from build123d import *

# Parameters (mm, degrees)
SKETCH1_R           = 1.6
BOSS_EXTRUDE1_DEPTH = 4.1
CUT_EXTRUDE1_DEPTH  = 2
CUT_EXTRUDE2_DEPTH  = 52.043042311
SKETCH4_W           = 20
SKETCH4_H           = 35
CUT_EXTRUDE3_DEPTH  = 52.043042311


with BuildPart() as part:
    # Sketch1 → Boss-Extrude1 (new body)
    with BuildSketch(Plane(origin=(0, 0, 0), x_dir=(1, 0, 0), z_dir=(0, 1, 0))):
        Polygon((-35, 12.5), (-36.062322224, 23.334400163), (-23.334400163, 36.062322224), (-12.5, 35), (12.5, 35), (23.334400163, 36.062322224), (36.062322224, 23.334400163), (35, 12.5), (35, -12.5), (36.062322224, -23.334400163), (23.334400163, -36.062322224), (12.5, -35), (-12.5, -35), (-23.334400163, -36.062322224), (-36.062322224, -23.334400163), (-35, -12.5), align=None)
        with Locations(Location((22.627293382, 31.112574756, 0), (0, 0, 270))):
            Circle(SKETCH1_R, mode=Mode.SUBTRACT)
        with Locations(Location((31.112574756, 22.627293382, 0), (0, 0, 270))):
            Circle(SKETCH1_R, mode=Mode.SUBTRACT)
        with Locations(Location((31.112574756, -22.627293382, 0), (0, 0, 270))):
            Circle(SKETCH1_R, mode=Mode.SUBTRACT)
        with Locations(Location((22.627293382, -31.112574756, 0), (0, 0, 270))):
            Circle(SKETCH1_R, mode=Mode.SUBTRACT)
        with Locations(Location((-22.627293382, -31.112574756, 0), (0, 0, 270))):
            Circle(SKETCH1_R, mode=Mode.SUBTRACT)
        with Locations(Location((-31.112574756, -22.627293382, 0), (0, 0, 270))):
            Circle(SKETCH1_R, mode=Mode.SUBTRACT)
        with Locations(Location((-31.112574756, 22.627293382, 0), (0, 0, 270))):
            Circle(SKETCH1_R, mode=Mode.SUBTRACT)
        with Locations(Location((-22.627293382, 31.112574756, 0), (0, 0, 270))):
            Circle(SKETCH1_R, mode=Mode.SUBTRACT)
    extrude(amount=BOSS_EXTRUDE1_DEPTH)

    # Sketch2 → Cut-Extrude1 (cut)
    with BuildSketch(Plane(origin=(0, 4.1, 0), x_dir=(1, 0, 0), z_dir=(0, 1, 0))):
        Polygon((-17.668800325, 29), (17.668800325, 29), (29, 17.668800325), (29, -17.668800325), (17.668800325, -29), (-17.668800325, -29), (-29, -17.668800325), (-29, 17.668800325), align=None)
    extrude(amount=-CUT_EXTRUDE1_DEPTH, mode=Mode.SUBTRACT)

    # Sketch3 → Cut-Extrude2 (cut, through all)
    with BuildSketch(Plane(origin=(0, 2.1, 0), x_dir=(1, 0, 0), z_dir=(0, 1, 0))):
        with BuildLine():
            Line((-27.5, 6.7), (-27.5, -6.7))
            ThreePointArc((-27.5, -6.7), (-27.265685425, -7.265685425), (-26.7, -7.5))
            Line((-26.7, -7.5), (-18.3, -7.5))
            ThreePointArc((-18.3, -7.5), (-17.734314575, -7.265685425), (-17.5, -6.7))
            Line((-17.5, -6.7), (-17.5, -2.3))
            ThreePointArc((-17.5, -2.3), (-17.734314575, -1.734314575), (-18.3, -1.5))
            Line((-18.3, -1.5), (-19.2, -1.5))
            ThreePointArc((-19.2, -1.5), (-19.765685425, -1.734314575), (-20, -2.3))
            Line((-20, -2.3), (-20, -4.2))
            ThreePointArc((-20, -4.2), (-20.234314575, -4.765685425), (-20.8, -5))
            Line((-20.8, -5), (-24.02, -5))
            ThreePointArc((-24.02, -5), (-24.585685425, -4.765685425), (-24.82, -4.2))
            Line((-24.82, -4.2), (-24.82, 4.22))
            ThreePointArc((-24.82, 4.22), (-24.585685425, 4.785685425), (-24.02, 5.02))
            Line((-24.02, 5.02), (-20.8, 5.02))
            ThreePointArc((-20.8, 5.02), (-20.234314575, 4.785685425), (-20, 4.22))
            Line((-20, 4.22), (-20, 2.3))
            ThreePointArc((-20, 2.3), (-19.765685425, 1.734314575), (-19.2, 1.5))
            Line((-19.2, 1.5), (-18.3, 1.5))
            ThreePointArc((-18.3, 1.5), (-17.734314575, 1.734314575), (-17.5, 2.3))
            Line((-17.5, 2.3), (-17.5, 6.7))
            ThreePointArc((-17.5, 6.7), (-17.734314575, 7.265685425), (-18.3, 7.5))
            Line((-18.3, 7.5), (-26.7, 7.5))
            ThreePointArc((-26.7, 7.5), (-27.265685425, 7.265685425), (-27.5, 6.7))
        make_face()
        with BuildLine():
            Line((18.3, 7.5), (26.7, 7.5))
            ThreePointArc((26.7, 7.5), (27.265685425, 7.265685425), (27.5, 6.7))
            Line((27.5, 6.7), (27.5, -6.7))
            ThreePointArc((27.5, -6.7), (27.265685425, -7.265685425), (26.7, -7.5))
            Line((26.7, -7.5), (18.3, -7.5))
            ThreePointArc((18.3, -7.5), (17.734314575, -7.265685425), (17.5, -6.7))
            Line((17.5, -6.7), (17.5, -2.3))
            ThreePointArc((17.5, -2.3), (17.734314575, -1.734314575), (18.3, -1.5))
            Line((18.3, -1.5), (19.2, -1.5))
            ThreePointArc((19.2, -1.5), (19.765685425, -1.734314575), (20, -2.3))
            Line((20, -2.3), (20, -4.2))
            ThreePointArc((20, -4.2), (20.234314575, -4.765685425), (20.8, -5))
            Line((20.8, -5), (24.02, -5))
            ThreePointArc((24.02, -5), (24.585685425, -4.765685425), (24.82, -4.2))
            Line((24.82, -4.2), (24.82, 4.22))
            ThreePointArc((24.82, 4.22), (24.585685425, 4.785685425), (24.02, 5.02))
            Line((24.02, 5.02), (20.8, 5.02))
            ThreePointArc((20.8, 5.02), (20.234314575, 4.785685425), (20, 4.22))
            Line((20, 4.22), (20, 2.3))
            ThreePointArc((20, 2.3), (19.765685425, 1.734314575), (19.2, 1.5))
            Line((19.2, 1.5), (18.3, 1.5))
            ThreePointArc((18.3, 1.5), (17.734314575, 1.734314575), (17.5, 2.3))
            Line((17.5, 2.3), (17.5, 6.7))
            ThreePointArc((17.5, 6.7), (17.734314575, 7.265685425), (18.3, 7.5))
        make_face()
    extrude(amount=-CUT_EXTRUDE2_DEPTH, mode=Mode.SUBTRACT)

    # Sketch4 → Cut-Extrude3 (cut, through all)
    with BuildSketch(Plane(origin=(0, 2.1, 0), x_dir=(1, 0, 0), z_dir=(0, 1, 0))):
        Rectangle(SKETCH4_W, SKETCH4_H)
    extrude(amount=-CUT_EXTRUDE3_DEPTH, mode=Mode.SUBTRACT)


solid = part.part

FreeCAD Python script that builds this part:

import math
import FreeCAD as App
import Part
import Sketcher
Q = App.Units.Quantity

doc = App.newDocument("Part")
body = doc.addObject("PartDesign::Body", "Body")

# Sketch on XZ plane
sketch1 = body.newObject("Sketcher::SketchObject", "Sketch")
sketch1.AttachmentSupport = (doc.getObject("XZ_Plane"), [""])
sketch1.MapMode = "FlatFace"
sketch1.addGeometry([
    Part.LineSegment(App.Vector(-36.1, -23.3, 0), App.Vector(-35, -12.5, 0)),  # 0
    Part.LineSegment(App.Vector(-35, -12.5, 0), App.Vector(-35, 12.5, 0)),  # 1
    Part.LineSegment(App.Vector(-35, 12.5, 0), App.Vector(-36.1, 23.3, 0)),  # 2
    Part.LineSegment(App.Vector(-36.1, 23.3, 0), App.Vector(-23.3, 36.1, 0)),  # 3
    Part.LineSegment(App.Vector(-23.3, 36.1, 0), App.Vector(-12.5, 35, 0)),  # 4
    Part.LineSegment(App.Vector(-12.5, 35, 0), App.Vector(12.5, 35, 0)),  # 5
    Part.LineSegment(App.Vector(12.5, 35, 0), App.Vector(23.3, 36.1, 0)),  # 6
    Part.LineSegment(App.Vector(23.3, 36.1, 0), App.Vector(36.1, 23.3, 0)),  # 7
    Part.LineSegment(App.Vector(36.1, 23.3, 0), App.Vector(35, 12.5, 0)),  # 8
    Part.LineSegment(App.Vector(35, 12.5, 0), App.Vector(35, -12.5, 0)),  # 9
    Part.LineSegment(App.Vector(35, -12.5, 0), App.Vector(36.1, -23.3, 0)),  # 10
    Part.LineSegment(App.Vector(36.1, -23.3, 0), App.Vector(23.3, -36.1, 0)),  # 11
    Part.LineSegment(App.Vector(23.3, -36.1, 0), App.Vector(12.5, -35, 0)),  # 12
    Part.LineSegment(App.Vector(12.5, -35, 0), App.Vector(-12.5, -35, 0)),  # 13
    Part.LineSegment(App.Vector(-12.5, -35, 0), App.Vector(-23.3, -36.1, 0)),  # 14
    Part.LineSegment(App.Vector(-23.3, -36.1, 0), App.Vector(-36.1, -23.3, 0)),  # 15
    Part.Circle(App.Vector(22.6, 31.1, 0), App.Vector(0, 0, 1), 1.6),  # 16
    Part.Circle(App.Vector(31.1, 22.6, 0), App.Vector(0, 0, 1), 1.6),  # 17
    Part.Circle(App.Vector(-22.6, 31.1, 0), App.Vector(0, 0, 1), 1.6),  # 18
    Part.Circle(App.Vector(-31.1, 22.6, 0), App.Vector(0, 0, 1), 1.6),  # 19
    Part.Circle(App.Vector(31.1, -22.6, 0), App.Vector(0, 0, 1), 1.6),  # 20
    Part.Circle(App.Vector(22.6, -31.1, 0), App.Vector(0, 0, 1), 1.6),  # 21
    Part.Circle(App.Vector(-31.1, -22.6, 0), App.Vector(0, 0, 1), 1.6),  # 22
    Part.Circle(App.Vector(-22.6, -31.1, 0), App.Vector(0, 0, 1), 1.6),  # 23
], False)
sketch1.addConstraint([
    Sketcher.Constraint("Coincident", 0, 2, 1, 1),
    Sketcher.Constraint("Coincident", 1, 2, 2, 1),
    Sketcher.Constraint("Coincident", 2, 2, 3, 1),
    Sketcher.Constraint("Coincident", 3, 2, 4, 1),
    Sketcher.Constraint("Coincident", 4, 2, 5, 1),
    Sketcher.Constraint("Coincident", 5, 2, 6, 1),
    Sketcher.Constraint("Coincident", 6, 2, 7, 1),
    Sketcher.Constraint("Coincident", 7, 2, 8, 1),
    Sketcher.Constraint("Coincident", 8, 2, 9, 1),
    Sketcher.Constraint("Coincident", 9, 2, 10, 1),
    Sketcher.Constraint("Coincident", 10, 2, 11, 1),
    Sketcher.Constraint("Coincident", 11, 2, 12, 1),
    Sketcher.Constraint("Coincident", 12, 2, 13, 1),
    Sketcher.Constraint("Coincident", 13, 2, 14, 1),
    Sketcher.Constraint("Coincident", 14, 2, 15, 1),
    Sketcher.Constraint("Coincident", 15, 2, 0, 1),
    Sketcher.Constraint("Vertical", 1),
    Sketcher.Constraint("Horizontal", 5),
    Sketcher.Constraint("Vertical", 9),
    Sketcher.Constraint("Horizontal", 13),
    Sketcher.Constraint("Equal", 16, 17),
    Sketcher.Constraint("Equal", 17, 18),
    Sketcher.Constraint("Equal", 18, 19),
    Sketcher.Constraint("Equal", 19, 20),
    Sketcher.Constraint("Equal", 20, 21),
    Sketcher.Constraint("Equal", 21, 22),
    Sketcher.Constraint("Equal", 22, 23),
    Sketcher.Constraint("Symmetric", 19, 3, 20, 3, -1, 1),
    Sketcher.Constraint("Symmetric", 18, 3, 21, 3, -1, 1),
    Sketcher.Constraint("Symmetric", 17, 3, 22, 3, -1, 1),
    Sketcher.Constraint("Symmetric", 16, 3, 23, 3, -1, 1),
    Sketcher.Constraint("Symmetric", 0, 2, 8, 2, -1, 1),
    Sketcher.Constraint("Symmetric", 2, 2, 10, 2, -1, 1),
    Sketcher.Constraint("Symmetric", 3, 2, 11, 2, -1, 1),
    Sketcher.Constraint("Symmetric", 4, 2, 12, 2, -1, 1),
    Sketcher.Constraint("Symmetric", 6, 2, 14, 2, -1, 1),
    Sketcher.Constraint("Symmetric", 7, 2, 15, 2, -1, 1),
    Sketcher.Constraint("Symmetric", 16, 3, 18, 3, -2),
    Sketcher.Constraint("Symmetric", 17, 3, 19, 3, -2),
    Sketcher.Constraint("Symmetric", 3, 2, 6, 2, -2),
    Sketcher.Constraint("Symmetric", 2, 2, 7, 2, -2),
    Sketcher.Constraint("Perpendicular", 0, 4),
    Sketcher.Constraint("Perpendicular", 2, 6),
    Sketcher.Constraint("Perpendicular", 3, 7),
    Sketcher.Constraint("Perpendicular", 6, 10),
    Sketcher.Constraint("Perpendicular", 10, 14),
    Sketcher.Constraint("Horizontal", 1, 2, 8, 2),
    Sketcher.Constraint("Equal", 13, 1),
    Sketcher.Constraint("Equal", 2, 4),
    Sketcher.Constraint("Diameter", 16, Q("3.2 mm")),
    Sketcher.Constraint("DistanceX", 5, 1, 5, 2, Q("25 mm")),
    Sketcher.Constraint("Distance", 3, Q("18 mm")),
    Sketcher.Constraint("DistanceX", 0, 2, -1, 1, Q("35 mm")),
    Sketcher.Constraint("Angle", 0, Q("84.4 deg")),
    Sketcher.Constraint("DistanceX", 16, 3, 17, 3, Q("8.485281 mm")),
    Sketcher.Constraint("DistanceY", 17, 3, 16, 3, Q("8.485281 mm")),
    Sketcher.Constraint("DistanceX", 18, 3, 17, 3, Q("53.739868 mm")),
    Sketcher.Constraint("DistanceY", 20, 3, 16, 3, Q("53.739868 mm")),
])
pad1 = body.newObject("PartDesign::Pad", "Pad")
pad1.Profile = sketch1
pad1.Length = 4.1
pad1.Reversed = True

# Sketch on XZ plane
sketch2 = body.newObject("Sketcher::SketchObject", "Sketch001")
sketch2.AttachmentSupport = (doc.getObject("XZ_Plane"), [""])
sketch2.MapMode = "FlatFace"
sketch2.AttachmentOffset = App.Placement(App.Vector(0, 0, -4.1), App.Rotation())
sketch2.addGeometry([
    Part.LineSegment(App.Vector(18, -29, 0), App.Vector(-18, -29, 0)),  # 0
    Part.LineSegment(App.Vector(-18, -29, 0), App.Vector(-29, -18, 0)),  # 1
    Part.LineSegment(App.Vector(-29, -18, 0), App.Vector(-29, 18, 0)),  # 2
    Part.LineSegment(App.Vector(-29, 18, 0), App.Vector(-18, 29, 0)),  # 3
    Part.LineSegment(App.Vector(-18, 29, 0), App.Vector(18, 29, 0)),  # 4
    Part.LineSegment(App.Vector(18, 29, 0), App.Vector(29, 18, 0)),  # 5
    Part.LineSegment(App.Vector(29, 18, 0), App.Vector(29, -18, 0)),  # 6
    Part.LineSegment(App.Vector(29, -18, 0), App.Vector(18, -29, 0)),  # 7
], False)
sketch2.addConstraint([
    Sketcher.Constraint("Coincident", 0, 2, 1, 1),
    Sketcher.Constraint("Coincident", 1, 2, 2, 1),
    Sketcher.Constraint("Coincident", 2, 2, 3, 1),
    Sketcher.Constraint("Coincident", 3, 2, 4, 1),
    Sketcher.Constraint("Coincident", 4, 2, 5, 1),
    Sketcher.Constraint("Coincident", 5, 2, 6, 1),
    Sketcher.Constraint("Coincident", 6, 2, 7, 1),
    Sketcher.Constraint("Coincident", 7, 2, 0, 1),
    Sketcher.Constraint("Horizontal", 0),
    Sketcher.Constraint("Vertical", 2),
    Sketcher.Constraint("Horizontal", 4),
    Sketcher.Constraint("Vertical", 6),
    Sketcher.Constraint("Symmetric", 0, 2, 4, 2, -1, 1),
    Sketcher.Constraint("Symmetric", 1, 2, 5, 2, -1, 1),
    Sketcher.Constraint("Perpendicular", 1, 3),
    Sketcher.Constraint("Perpendicular", 5, 7),
    Sketcher.Constraint("Horizontal", 2, 2, 5, 2),
    Sketcher.Constraint("Horizontal", 1, 2, 6, 2),
    Sketcher.Constraint("Vertical", 0, 2, 3, 2),
    Sketcher.Constraint("Equal", 4, 2),
    Sketcher.Constraint("DistanceY", 0, 2, -1, 1, Q("29 mm")),
    Sketcher.Constraint("DistanceX", 0, 2, 0, 1, Q("35.337601 mm")),
])
pocket1 = body.newObject("PartDesign::Pocket", "Pocket")
pocket1.Profile = sketch2
pocket1.Length = 2
pocket1.Reversed = True

# Sketch on XZ plane
sketch3 = body.newObject("Sketcher::SketchObject", "Sketch002")
sketch3.AttachmentSupport = (doc.getObject("XZ_Plane"), [""])
sketch3.MapMode = "FlatFace"
sketch3.AttachmentOffset = App.Placement(App.Vector(0, 0, -2.1), App.Rotation())
sketch3.addGeometry([
    Part.LineSegment(App.Vector(-27.5, -6.7, 0), App.Vector(-27.5, 6.7, 0)),  # 0
    Part.ArcOfCircle(Part.Circle(App.Vector(-26.7, 6.7, 0), App.Vector(0, 0, 1), 0.8), math.radians(90), math.radians(180)),  # 1
    Part.LineSegment(App.Vector(-26.7, 7.5, 0), App.Vector(-18.3, 7.5, 0)),  # 2
    Part.ArcOfCircle(Part.Circle(App.Vector(-18.3, 6.7, 0), App.Vector(0, 0, 1), 0.8), math.radians(0), math.radians(90)),  # 3
    Part.LineSegment(App.Vector(-17.5, 6.7, 0), App.Vector(-17.5, 2.3, 0)),  # 4
    Part.ArcOfCircle(Part.Circle(App.Vector(-18.3, 2.3, 0), App.Vector(0, 0, 1), 0.8), math.radians(-90), math.radians(0)),  # 5
    Part.LineSegment(App.Vector(-18.3, 1.5, 0), App.Vector(-19.2, 1.5, 0)),  # 6
    Part.ArcOfCircle(Part.Circle(App.Vector(-19.2, 2.3, 0), App.Vector(0, 0, 1), 0.8), math.radians(180), math.radians(270)),  # 7
    Part.LineSegment(App.Vector(-20, 2.3, 0), App.Vector(-20, 4.2, 0)),  # 8
    Part.ArcOfCircle(Part.Circle(App.Vector(-20.8, 4.2, 0), App.Vector(0, 0, 1), 0.8), math.radians(0), math.radians(90)),  # 9
    Part.LineSegment(App.Vector(-20.8, 5, 0), App.Vector(-24, 5, 0)),  # 10
    Part.ArcOfCircle(Part.Circle(App.Vector(-24, 4.2, 0), App.Vector(0, 0, 1), 0.8), math.radians(90), math.radians(180)),  # 11
    Part.LineSegment(App.Vector(-24.8, 4.2, 0), App.Vector(-24.8, -4.2, 0)),  # 12
    Part.ArcOfCircle(Part.Circle(App.Vector(-24, -4.2, 0), App.Vector(0, 0, 1), 0.8), math.radians(180), math.radians(270)),  # 13
    Part.LineSegment(App.Vector(-24, -5, 0), App.Vector(-20.8, -5, 0)),  # 14
    Part.ArcOfCircle(Part.Circle(App.Vector(-20.8, -4.2, 0), App.Vector(0, 0, 1), 0.8), math.radians(-90), math.radians(0)),  # 15
    Part.LineSegment(App.Vector(-20, -4.2, 0), App.Vector(-20, -2.3, 0)),  # 16
    Part.ArcOfCircle(Part.Circle(App.Vector(-19.2, -2.3, 0), App.Vector(0, 0, 1), 0.8), math.radians(90), math.radians(180)),  # 17
    Part.LineSegment(App.Vector(-19.2, -1.5, 0), App.Vector(-18.3, -1.5, 0)),  # 18
    Part.ArcOfCircle(Part.Circle(App.Vector(-18.3, -2.3, 0), App.Vector(0, 0, 1), 0.8), math.radians(0), math.radians(90)),  # 19
    Part.LineSegment(App.Vector(-17.5, -2.3, 0), App.Vector(-17.5, -6.7, 0)),  # 20
    Part.ArcOfCircle(Part.Circle(App.Vector(-18.3, -6.7, 0), App.Vector(0, 0, 1), 0.8), math.radians(-90), math.radians(0)),  # 21
    Part.LineSegment(App.Vector(-18.3, -7.5, 0), App.Vector(-26.7, -7.5, 0)),  # 22
    Part.ArcOfCircle(Part.Circle(App.Vector(-26.7, -6.7, 0), App.Vector(0, 0, 1), 0.8), math.radians(180), math.radians(270)),  # 23
    Part.LineSegment(App.Vector(26.7, -7.5, 0), App.Vector(18.3, -7.5, 0)),  # 24
    Part.ArcOfCircle(Part.Circle(App.Vector(18.3, -6.7, 0), App.Vector(0, 0, 1), 0.8), math.radians(180), math.radians(270)),  # 25
    Part.LineSegment(App.Vector(17.5, -6.7, 0), App.Vector(17.5, -2.3, 0)),  # 26
    Part.ArcOfCircle(Part.Circle(App.Vector(18.3, -2.3, 0), App.Vector(0, 0, 1), 0.8), math.radians(90), math.radians(180)),  # 27
    Part.LineSegment(App.Vector(18.3, -1.5, 0), App.Vector(19.2, -1.5, 0)),  # 28
    Part.ArcOfCircle(Part.Circle(App.Vector(19.2, -2.3, 0), App.Vector(0, 0, 1), 0.8), math.radians(0), math.radians(90)),  # 29
    Part.LineSegment(App.Vector(20, -2.3, 0), App.Vector(20, -4.2, 0)),  # 30
    Part.ArcOfCircle(Part.Circle(App.Vector(20.8, -4.2, 0), App.Vector(0, 0, 1), 0.8), math.radians(180), math.radians(270)),  # 31
    Part.LineSegment(App.Vector(20.8, -5, 0), App.Vector(24, -5, 0)),  # 32
    Part.ArcOfCircle(Part.Circle(App.Vector(24, -4.2, 0), App.Vector(0, 0, 1), 0.8), math.radians(-90), math.radians(0)),  # 33
    Part.LineSegment(App.Vector(24.8, -4.2, 0), App.Vector(24.8, 4.2, 0)),  # 34
    Part.ArcOfCircle(Part.Circle(App.Vector(24, 4.2, 0), App.Vector(0, 0, 1), 0.8), math.radians(0), math.radians(90)),  # 35
    Part.LineSegment(App.Vector(24, 5, 0), App.Vector(20.8, 5, 0)),  # 36
    Part.ArcOfCircle(Part.Circle(App.Vector(20.8, 4.2, 0), App.Vector(0, 0, 1), 0.8), math.radians(90), math.radians(180)),  # 37
    Part.LineSegment(App.Vector(20, 4.2, 0), App.Vector(20, 2.3, 0)),  # 38
    Part.ArcOfCircle(Part.Circle(App.Vector(19.2, 2.3, 0), App.Vector(0, 0, 1), 0.8), math.radians(-90), math.radians(0)),  # 39
    Part.LineSegment(App.Vector(19.2, 1.5, 0), App.Vector(18.3, 1.5, 0)),  # 40
    Part.ArcOfCircle(Part.Circle(App.Vector(18.3, 2.3, 0), App.Vector(0, 0, 1), 0.8), math.radians(180), math.radians(270)),  # 41
    Part.LineSegment(App.Vector(17.5, 2.3, 0), App.Vector(17.5, 6.7, 0)),  # 42
    Part.ArcOfCircle(Part.Circle(App.Vector(18.3, 6.7, 0), App.Vector(0, 0, 1), 0.8), math.radians(90), math.radians(180)),  # 43
    Part.LineSegment(App.Vector(18.3, 7.5, 0), App.Vector(26.7, 7.5, 0)),  # 44
    Part.ArcOfCircle(Part.Circle(App.Vector(26.7, 6.7, 0), App.Vector(0, 0, 1), 0.8), math.radians(0), math.radians(90)),  # 45
    Part.LineSegment(App.Vector(27.5, 6.7, 0), App.Vector(27.5, -6.7, 0)),  # 46
    Part.ArcOfCircle(Part.Circle(App.Vector(26.7, -6.7, 0), App.Vector(0, 0, 1), 0.8), math.radians(-90), math.radians(0)),  # 47
], False)
sketch3.addConstraint([
    Sketcher.Constraint("Tangent", 0, 2, 1, 2),
    Sketcher.Constraint("Tangent", 1, 1, 2, 1),
    Sketcher.Constraint("Tangent", 2, 2, 3, 2),
    Sketcher.Constraint("Tangent", 3, 1, 4, 1),
    Sketcher.Constraint("Tangent", 4, 2, 5, 2),
    Sketcher.Constraint("Tangent", 5, 1, 6, 1),
    Sketcher.Constraint("Tangent", 6, 2, 7, 2),
    Sketcher.Constraint("Tangent", 7, 1, 8, 1),
    Sketcher.Constraint("Tangent", 8, 2, 9, 1),
    Sketcher.Constraint("Tangent", 9, 2, 10, 1),
    Sketcher.Constraint("Tangent", 10, 2, 11, 1),
    Sketcher.Constraint("Tangent", 11, 2, 12, 1),
    Sketcher.Constraint("Tangent", 12, 2, 13, 1),
    Sketcher.Constraint("Tangent", 13, 2, 14, 1),
    Sketcher.Constraint("Tangent", 14, 2, 15, 1),
    Sketcher.Constraint("Tangent", 15, 2, 16, 1),
    Sketcher.Constraint("Tangent", 16, 2, 17, 2),
    Sketcher.Constraint("Tangent", 17, 1, 18, 1),
    Sketcher.Constraint("Tangent", 18, 2, 19, 2),
    Sketcher.Constraint("Tangent", 19, 1, 20, 1),
    Sketcher.Constraint("Tangent", 20, 2, 21, 2),
    Sketcher.Constraint("Tangent", 21, 1, 22, 1),
    Sketcher.Constraint("Tangent", 22, 2, 23, 2),
    Sketcher.Constraint("Tangent", 23, 1, 0, 1),
    Sketcher.Constraint("Tangent", 24, 2, 25, 2),
    Sketcher.Constraint("Tangent", 25, 1, 26, 1),
    Sketcher.Constraint("Tangent", 26, 2, 27, 2),
    Sketcher.Constraint("Tangent", 27, 1, 28, 1),
    Sketcher.Constraint("Tangent", 28, 2, 29, 2),
    Sketcher.Constraint("Tangent", 29, 1, 30, 1),
    Sketcher.Constraint("Tangent", 30, 2, 31, 1),
    Sketcher.Constraint("Tangent", 31, 2, 32, 1),
    Sketcher.Constraint("Tangent", 32, 2, 33, 1),
    Sketcher.Constraint("Tangent", 33, 2, 34, 1),
    Sketcher.Constraint("Tangent", 34, 2, 35, 1),
    Sketcher.Constraint("Tangent", 35, 2, 36, 1),
    Sketcher.Constraint("Tangent", 36, 2, 37, 1),
    Sketcher.Constraint("Tangent", 37, 2, 38, 1),
    Sketcher.Constraint("Tangent", 38, 2, 39, 2),
    Sketcher.Constraint("Tangent", 39, 1, 40, 1),
    Sketcher.Constraint("Tangent", 40, 2, 41, 2),
    Sketcher.Constraint("Tangent", 41, 1, 42, 1),
    Sketcher.Constraint("Tangent", 42, 2, 43, 2),
    Sketcher.Constraint("Tangent", 43, 1, 44, 1),
    Sketcher.Constraint("Tangent", 44, 2, 45, 2),
    Sketcher.Constraint("Tangent", 45, 1, 46, 1),
    Sketcher.Constraint("Tangent", 46, 2, 47, 2),
    Sketcher.Constraint("Tangent", 47, 1, 24, 1),
    Sketcher.Constraint("Vertical", 0),
    Sketcher.Constraint("Horizontal", 2),
    Sketcher.Constraint("Vertical", 4),
    Sketcher.Constraint("Horizontal", 6),
    Sketcher.Constraint("Vertical", 8),
    Sketcher.Constraint("Horizontal", 10),
    Sketcher.Constraint("Vertical", 12),
    Sketcher.Constraint("Horizontal", 14),
    Sketcher.Constraint("Vertical", 16),
    Sketcher.Constraint("Horizontal", 18),
    Sketcher.Constraint("Vertical", 20),
    Sketcher.Constraint("Horizontal", 22),
    Sketcher.Constraint("Horizontal", 24),
    Sketcher.Constraint("Vertical", 26),
    Sketcher.Constraint("Horizontal", 28),
    Sketcher.Constraint("Vertical", 30),
    Sketcher.Constraint("Horizontal", 32),
    Sketcher.Constraint("Vertical", 34),
    Sketcher.Constraint("Horizontal", 36),
    Sketcher.Constraint("Vertical", 38),
    Sketcher.Constraint("Horizontal", 40),
    Sketcher.Constraint("Vertical", 42),
    Sketcher.Constraint("Horizontal", 44),
    Sketcher.Constraint("Vertical", 46),
    Sketcher.Constraint("Equal", 1, 3),
    Sketcher.Constraint("Equal", 3, 5),
    Sketcher.Constraint("Equal", 5, 7),
    Sketcher.Constraint("Equal", 7, 9),
    Sketcher.Constraint("Equal", 9, 11),
    Sketcher.Constraint("Equal", 11, 13),
    Sketcher.Constraint("Equal", 13, 15),
    Sketcher.Constraint("Equal", 15, 17),
    Sketcher.Constraint("Equal", 17, 19),
    Sketcher.Constraint("Equal", 19, 21),
    Sketcher.Constraint("Equal", 21, 23),
    Sketcher.Constraint("Equal", 23, 25),
    Sketcher.Constraint("Equal", 25, 27),
    Sketcher.Constraint("Equal", 27, 29),
    Sketcher.Constraint("Equal", 29, 31),
    Sketcher.Constraint("Equal", 31, 33),
    Sketcher.Constraint("Equal", 33, 35),
    Sketcher.Constraint("Equal", 35, 37),
    Sketcher.Constraint("Equal", 37, 39),
    Sketcher.Constraint("Equal", 39, 41),
    Sketcher.Constraint("Equal", 41, 43),
    Sketcher.Constraint("Equal", 43, 45),
    Sketcher.Constraint("Equal", 45, 47),
    Sketcher.Constraint("Symmetric", 3, 3, 25, 3, -1, 1),
    Sketcher.Constraint("Symmetric", 7, 3, 29, 3, -1, 1),
    Sketcher.Constraint("Symmetric", 17, 3, 39, 3, -1, 1),
    Sketcher.Constraint("Symmetric", 21, 3, 43, 3, -1, 1),
    Sketcher.Constraint("Symmetric", 21, 3, 25, 3, -2),
    Sketcher.Constraint("Symmetric", 17, 3, 29, 3, -2),
    Sketcher.Constraint("Symmetric", 13, 3, 33, 3, -2),
    Sketcher.Constraint("Horizontal", 11, 3, 35, 3),
    Sketcher.Constraint("Equal", 22, 24),
    Sketcher.Constraint("Radius", 1, Q("0.8 mm")),
    Sketcher.Constraint("DistanceX", 2, 1, 2, 2, Q("8.4 mm")),
    Sketcher.Constraint("DistanceX", 6, 2, 6, 1, Q("0.9 mm")),
    Sketcher.Constraint("DistanceY", 0, 1, 0, 2, Q("13.4 mm")),
    Sketcher.Constraint("DistanceY", 4, 2, 4, 1, Q("4.4 mm")),
    Sketcher.Constraint("DistanceY", 8, 1, 8, 2, Q("1.9 mm")),
    Sketcher.Constraint("DistanceX", 7, 1, -1, 1, Q("20 mm")),
    Sketcher.Constraint("DistanceX", 10, 2, 10, 1, Q("3.22 mm")),
    Sketcher.Constraint("DistanceY", 12, 2, 12, 1, Q("8.42 mm")),
])
pocket2 = body.newObject("PartDesign::Pocket", "Pocket001")
pocket2.Profile = sketch3
pocket2.Type = "ThroughAll"
pocket2.Reversed = True

# Sketch on XZ plane
sketch4 = body.newObject("Sketcher::SketchObject", "Sketch003")
sketch4.AttachmentSupport = (doc.getObject("XZ_Plane"), [""])
sketch4.MapMode = "FlatFace"
sketch4.AttachmentOffset = App.Placement(App.Vector(0, 0, -2.1), App.Rotation())
sketch4.addGeometry([
    Part.LineSegment(App.Vector(-10, -18, 0), App.Vector(-10, 18, 0)),
    Part.LineSegment(App.Vector(-10, 18, 0), App.Vector(10, 18, 0)),
    Part.LineSegment(App.Vector(10, 18, 0), App.Vector(10, -18, 0)),
    Part.LineSegment(App.Vector(10, -18, 0), App.Vector(-10, -18, 0)),
], False)
sketch4.addConstraint([
    Sketcher.Constraint("Coincident", 0, 2, 1, 1),
    Sketcher.Constraint("Coincident", 1, 2, 2, 1),
    Sketcher.Constraint("Coincident", 2, 2, 3, 1),
    Sketcher.Constraint("Coincident", 3, 2, 0, 1),
    Sketcher.Constraint("Vertical", 0),
    Sketcher.Constraint("Horizontal", 1),
    Sketcher.Constraint("Vertical", 2),
    Sketcher.Constraint("Horizontal", 3),
    Sketcher.Constraint("Symmetric", 0, 2, 2, 2, -1, 1),
    Sketcher.Constraint("DistanceX", 1, 1, 1, 2, Q("20 mm")),
    Sketcher.Constraint("DistanceY", 0, 1, 0, 2, Q("35 mm")),
])
pocket3 = body.newObject("PartDesign::Pocket", "Pocket002")
pocket3.Profile = sketch4
pocket3.Type = "ThroughAll"
pocket3.Reversed = True

doc.recompute()
